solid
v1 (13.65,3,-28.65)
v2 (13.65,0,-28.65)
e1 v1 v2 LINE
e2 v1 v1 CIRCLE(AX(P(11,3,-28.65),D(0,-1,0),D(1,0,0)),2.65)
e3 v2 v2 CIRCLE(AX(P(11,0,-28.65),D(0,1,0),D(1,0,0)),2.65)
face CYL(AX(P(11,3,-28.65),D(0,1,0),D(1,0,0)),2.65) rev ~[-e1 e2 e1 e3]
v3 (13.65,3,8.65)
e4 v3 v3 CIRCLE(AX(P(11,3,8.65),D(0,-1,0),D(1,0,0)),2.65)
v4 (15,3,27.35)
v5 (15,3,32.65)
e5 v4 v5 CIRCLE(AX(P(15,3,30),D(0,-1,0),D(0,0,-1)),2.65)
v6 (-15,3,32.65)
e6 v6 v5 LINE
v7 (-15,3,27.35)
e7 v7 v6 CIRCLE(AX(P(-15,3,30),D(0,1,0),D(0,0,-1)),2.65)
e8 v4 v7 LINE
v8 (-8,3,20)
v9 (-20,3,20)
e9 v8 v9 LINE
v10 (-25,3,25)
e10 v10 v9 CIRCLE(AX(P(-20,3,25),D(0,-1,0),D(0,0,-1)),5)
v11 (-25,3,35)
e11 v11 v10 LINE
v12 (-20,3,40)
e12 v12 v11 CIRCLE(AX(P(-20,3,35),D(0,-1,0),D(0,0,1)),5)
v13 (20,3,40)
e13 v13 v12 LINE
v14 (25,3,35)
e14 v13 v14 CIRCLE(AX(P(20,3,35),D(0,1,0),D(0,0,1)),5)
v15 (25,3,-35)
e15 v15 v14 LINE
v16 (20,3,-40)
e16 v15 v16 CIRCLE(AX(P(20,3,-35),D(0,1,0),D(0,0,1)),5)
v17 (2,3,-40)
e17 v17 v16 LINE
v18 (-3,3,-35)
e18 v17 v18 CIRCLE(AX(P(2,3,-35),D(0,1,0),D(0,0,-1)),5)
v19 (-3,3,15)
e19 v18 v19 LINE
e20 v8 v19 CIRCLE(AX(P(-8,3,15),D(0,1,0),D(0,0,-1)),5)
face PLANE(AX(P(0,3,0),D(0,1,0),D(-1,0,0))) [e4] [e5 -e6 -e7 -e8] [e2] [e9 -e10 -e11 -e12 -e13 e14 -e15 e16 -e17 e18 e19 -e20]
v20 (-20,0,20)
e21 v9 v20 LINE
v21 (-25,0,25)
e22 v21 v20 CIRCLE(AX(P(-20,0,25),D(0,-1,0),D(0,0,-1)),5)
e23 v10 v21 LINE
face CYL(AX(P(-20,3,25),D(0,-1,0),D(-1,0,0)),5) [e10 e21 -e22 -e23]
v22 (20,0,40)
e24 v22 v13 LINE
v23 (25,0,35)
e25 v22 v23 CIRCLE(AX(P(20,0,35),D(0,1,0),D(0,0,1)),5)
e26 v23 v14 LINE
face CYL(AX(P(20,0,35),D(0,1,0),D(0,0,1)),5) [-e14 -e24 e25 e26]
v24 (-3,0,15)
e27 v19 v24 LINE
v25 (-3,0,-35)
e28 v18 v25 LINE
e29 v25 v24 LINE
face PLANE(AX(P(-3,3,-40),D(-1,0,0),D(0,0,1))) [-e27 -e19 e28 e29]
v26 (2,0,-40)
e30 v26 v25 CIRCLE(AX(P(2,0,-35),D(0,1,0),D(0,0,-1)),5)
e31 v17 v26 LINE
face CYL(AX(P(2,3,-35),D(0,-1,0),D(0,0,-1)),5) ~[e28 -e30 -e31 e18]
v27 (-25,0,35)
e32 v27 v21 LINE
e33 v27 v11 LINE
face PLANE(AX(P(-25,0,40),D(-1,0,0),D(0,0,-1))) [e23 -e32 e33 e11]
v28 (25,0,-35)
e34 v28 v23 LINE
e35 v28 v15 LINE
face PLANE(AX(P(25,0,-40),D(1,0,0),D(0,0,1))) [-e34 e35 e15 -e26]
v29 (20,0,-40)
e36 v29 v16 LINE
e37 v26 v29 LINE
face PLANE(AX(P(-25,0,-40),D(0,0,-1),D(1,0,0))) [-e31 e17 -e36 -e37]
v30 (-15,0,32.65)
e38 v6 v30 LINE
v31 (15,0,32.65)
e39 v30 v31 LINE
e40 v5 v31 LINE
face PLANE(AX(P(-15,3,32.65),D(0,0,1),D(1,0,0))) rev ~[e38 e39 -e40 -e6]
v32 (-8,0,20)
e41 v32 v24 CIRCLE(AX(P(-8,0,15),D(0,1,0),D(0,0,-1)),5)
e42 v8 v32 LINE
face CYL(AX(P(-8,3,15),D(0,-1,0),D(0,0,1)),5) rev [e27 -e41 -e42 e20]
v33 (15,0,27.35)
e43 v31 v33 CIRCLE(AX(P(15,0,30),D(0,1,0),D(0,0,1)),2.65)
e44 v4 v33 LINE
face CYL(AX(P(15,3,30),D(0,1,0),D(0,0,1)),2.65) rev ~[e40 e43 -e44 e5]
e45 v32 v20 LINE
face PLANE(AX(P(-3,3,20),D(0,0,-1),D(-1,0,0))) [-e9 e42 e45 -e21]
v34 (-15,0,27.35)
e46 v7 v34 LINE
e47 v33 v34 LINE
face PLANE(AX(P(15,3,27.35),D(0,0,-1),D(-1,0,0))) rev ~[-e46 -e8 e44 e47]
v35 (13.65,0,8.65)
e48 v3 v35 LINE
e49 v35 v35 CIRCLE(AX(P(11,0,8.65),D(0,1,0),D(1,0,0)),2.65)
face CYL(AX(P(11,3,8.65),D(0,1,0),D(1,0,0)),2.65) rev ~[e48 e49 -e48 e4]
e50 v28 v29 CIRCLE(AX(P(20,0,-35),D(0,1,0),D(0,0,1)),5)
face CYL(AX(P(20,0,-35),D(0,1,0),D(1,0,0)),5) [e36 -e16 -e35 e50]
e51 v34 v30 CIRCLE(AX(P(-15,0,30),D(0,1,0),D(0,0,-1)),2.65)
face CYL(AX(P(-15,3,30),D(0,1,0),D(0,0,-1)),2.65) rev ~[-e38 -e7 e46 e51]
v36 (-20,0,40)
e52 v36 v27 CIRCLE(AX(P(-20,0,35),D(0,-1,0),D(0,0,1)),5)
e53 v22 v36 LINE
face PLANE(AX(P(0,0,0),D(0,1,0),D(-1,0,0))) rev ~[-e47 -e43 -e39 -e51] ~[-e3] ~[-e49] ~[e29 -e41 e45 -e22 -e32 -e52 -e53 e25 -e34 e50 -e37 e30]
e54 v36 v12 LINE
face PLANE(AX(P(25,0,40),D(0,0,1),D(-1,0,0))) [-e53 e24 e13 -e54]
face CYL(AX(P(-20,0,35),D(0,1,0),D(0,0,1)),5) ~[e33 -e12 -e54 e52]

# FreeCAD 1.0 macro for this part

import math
import FreeCAD as App
import Part
import Sketcher


def edges_at(feature, points):
    """Names of the edges that pass closest to the given points."""
    edges = feature.Shape.Edges
    near = lambda p: min(range(len(edges)), key=lambda i: edges[i].distToShape(Part.Vertex(*p))[0])
    return sorted({f"Edge{near(p) + 1}" for p in points})

doc = App.newDocument("Part")
body = doc.addObject("PartDesign::Body", "Body")

sketch1 = body.newObject("Sketcher::SketchObject", "Sketch")
sketch1.AttachmentSupport = (doc.getObject("XZ_Plane"), [""])
sketch1.MapMode = "FlatFace"
sketch1.addGeometry(Part.LineSegment(App.Vector(-25, 40, 0), App.Vector(25, 40, 0)), False)
sketch1.addGeometry(Part.LineSegment(App.Vector(25, 40, 0), App.Vector(25, -40, 0)), False)
sketch1.addGeometry(Part.LineSegment(App.Vector(25, -40, 0), App.Vector(-25, -40, 0)), False)
sketch1.addGeometry(Part.LineSegment(App.Vector(-25, -40, 0), App.Vector(-25, 40, 0)), False)
sketch1.addConstraint(Sketcher.Constraint("Coincident", 0, 2, 1, 1))
sketch1.addConstraint(Sketcher.Constraint("Coincident", 1, 2, 2, 1))
sketch1.addConstraint(Sketcher.Constraint("Coincident", 2, 2, 3, 1))
sketch1.addConstraint(Sketcher.Constraint("Coincident", 3, 2, 0, 1))
sketch1.addConstraint(Sketcher.Constraint("Horizontal", 0))
sketch1.addConstraint(Sketcher.Constraint("Vertical", 1))
sketch1.addConstraint(Sketcher.Constraint("Horizontal", 2))
sketch1.addConstraint(Sketcher.Constraint("Vertical", 3))
sketch1.addConstraint(Sketcher.Constraint("Symmetric", 0, 2, 2, 2, -1, 1))
sketch1.addConstraint(Sketcher.Constraint("DistanceX", 0, 1, 0, 2, 50.0))
sketch1.addConstraint(Sketcher.Constraint("DistanceY", 1, 2, 1, 1, 80.0))
pad1 = body.newObject("PartDesign::Pad", "Pad")
pad1.Profile = sketch1
pad1.Length = 3
pad1.Reversed = True

sketch2 = body.newObject("Sketcher::SketchObject", "Sketch001")
sketch2.AttachmentSupport = (doc.getObject("XZ_Plane"), [""])
sketch2.MapMode = "FlatFace"
sketch2.AttachmentOffset = App.Placement(App.Vector(0, 0, -3), App.Rotation())
sketch2.addGeometry(Part.LineSegment(App.Vector(-25, -40, 0), App.Vector(-25, 20, 0)), False)
sketch2.addGeometry(Part.LineSegment(App.Vector(-25, 20, 0), App.Vector(-3, 20, 0)), False)
sketch2.addGeometry(Part.LineSegment(App.Vector(-3, 20, 0), App.Vector(-3, -40, 0)), False)
sketch2.addGeometry(Part.LineSegment(App.Vector(-3, -40, 0), App.Vector(-25, -40, 0)), False)
sketch2.addGeometry(Part.Circle(App.Vector(11, 8.65, 0), App.Vector(0, 0, 1), 2.65), False)
sketch2.addGeometry(Part.ArcOfCircle(Part.Circle(App.Vector(15, 30, 0), App.Vector(0, 0, 1), 2.65), math.radians(-90), math.radians(90)), False)
sketch2.addGeometry(Part.LineSegment(App.Vector(15, 27.35, 0), App.Vector(-15, 27.35, 0)), False)
sketch2.addGeometry(Part.ArcOfCircle(Part.Circle(App.Vector(-15, 30, 0), App.Vector(0, 0, 1), 2.65), math.radians(90), math.radians(270)), False)
sketch2.addGeometry(Part.LineSegment(App.Vector(-15, 32.65, 0), App.Vector(15, 32.65, 0)), False)
sketch2.addGeometry(Part.Circle(App.Vector(11, -28.65, 0), App.Vector(0, 0, 1), 2.65), False)
sketch2.addConstraint(Sketcher.Constraint("Coincident", 0, 2, 1, 1))
sketch2.addConstraint(Sketcher.Constraint("Coincident", 1, 2, 2, 1))
sketch2.addConstraint(Sketcher.Constraint("Coincident", 2, 2, 3, 1))
sketch2.addConstraint(Sketcher.Constraint("Coincident", 3, 2, 0, 1))
sketch2.addConstraint(Sketcher.Constraint("Tangent", 5, 1, 6, 1))
sketch2.addConstraint(Sketcher.Constraint("Tangent", 6, 2, 7, 2))
sketch2.addConstraint(Sketcher.Constraint("Tangent", 7, 1, 8, 1))
sketch2.addConstraint(Sketcher.Constraint("Tangent", 8, 2, 5, 2))
sketch2.addConstraint(Sketcher.Constraint("Vertical", 0))
sketch2.addConstraint(Sketcher.Constraint("Horizontal", 1))
sketch2.addConstraint(Sketcher.Constraint("Vertical", 2))
sketch2.addConstraint(Sketcher.Constraint("Horizontal", 3))
sketch2.addConstraint(Sketcher.Constraint("Horizontal", 6))
sketch2.addConstraint(Sketcher.Constraint("Horizontal", 8))
sketch2.addConstraint(Sketcher.Constraint("Equal", 4, 5))
sketch2.addConstraint(Sketcher.Constraint("Equal", 7, 9))
sketch2.addConstraint(Sketcher.Constraint("Vertical", 4, 3, 9, 3))
sketch2.addConstraint(Sketcher.Constraint("Diameter", 4, 5.3))
sketch2.addConstraint(Sketcher.Constraint("DistanceX", 1, 1, 1, 2, 22.0))
sketch2.addConstraint(Sketcher.Constraint("DistanceY", 0, 1, 0, 2, 60.0))
sketch2.addConstraint(Sketcher.Constraint("DistanceX", 0, 2, 7, 3, 10.0))
sketch2.addConstraint(Sketcher.Constraint("DistanceY", 0, 2, 7, 3, 10.0))
sketch2.addConstraint(Sketcher.Constraint("DistanceX", 1, 2, 4, 3, 14.0))
sketch2.addConstraint(Sketcher.Constraint("DistanceY", 9, 3, 4, 3, 37.3))
sketch2.addConstraint(Sketcher.Constraint("DistanceX", 6, 2, 6, 1, 30.0))
sketch2.addConstraint(Sketcher.Constraint("DistanceY", 4, 3, 0, 2, 11.35))
sketch2.addConstraint(Sketcher.Constraint("DistanceX", -1, 1, 4, 3, 11.0))
sketch2.addConstraint(Sketcher.Constraint("DistanceY", -1, 1, 5, 3, 30.0))
pocket1 = body.newObject("PartDesign::Pocket", "Pocket")
pocket1.Profile = sketch2
pocket1.Type = "ThroughAll"
pocket1.Reversed = True
doc.recompute()

fillet = body.newObject("PartDesign::Fillet", "Fillet")
fillet.Base = (pocket1, edges_at(pocket1, [
    (-25, 1.5, 40),
    (25, 1.5, 40),
    (25, 1.5, -40),
    (-3, 1.5, -40),
    (-3, 1.5, 20),
    (-25, 1.5, 20),
]))
fillet.Radius = 5

doc.recompute()
